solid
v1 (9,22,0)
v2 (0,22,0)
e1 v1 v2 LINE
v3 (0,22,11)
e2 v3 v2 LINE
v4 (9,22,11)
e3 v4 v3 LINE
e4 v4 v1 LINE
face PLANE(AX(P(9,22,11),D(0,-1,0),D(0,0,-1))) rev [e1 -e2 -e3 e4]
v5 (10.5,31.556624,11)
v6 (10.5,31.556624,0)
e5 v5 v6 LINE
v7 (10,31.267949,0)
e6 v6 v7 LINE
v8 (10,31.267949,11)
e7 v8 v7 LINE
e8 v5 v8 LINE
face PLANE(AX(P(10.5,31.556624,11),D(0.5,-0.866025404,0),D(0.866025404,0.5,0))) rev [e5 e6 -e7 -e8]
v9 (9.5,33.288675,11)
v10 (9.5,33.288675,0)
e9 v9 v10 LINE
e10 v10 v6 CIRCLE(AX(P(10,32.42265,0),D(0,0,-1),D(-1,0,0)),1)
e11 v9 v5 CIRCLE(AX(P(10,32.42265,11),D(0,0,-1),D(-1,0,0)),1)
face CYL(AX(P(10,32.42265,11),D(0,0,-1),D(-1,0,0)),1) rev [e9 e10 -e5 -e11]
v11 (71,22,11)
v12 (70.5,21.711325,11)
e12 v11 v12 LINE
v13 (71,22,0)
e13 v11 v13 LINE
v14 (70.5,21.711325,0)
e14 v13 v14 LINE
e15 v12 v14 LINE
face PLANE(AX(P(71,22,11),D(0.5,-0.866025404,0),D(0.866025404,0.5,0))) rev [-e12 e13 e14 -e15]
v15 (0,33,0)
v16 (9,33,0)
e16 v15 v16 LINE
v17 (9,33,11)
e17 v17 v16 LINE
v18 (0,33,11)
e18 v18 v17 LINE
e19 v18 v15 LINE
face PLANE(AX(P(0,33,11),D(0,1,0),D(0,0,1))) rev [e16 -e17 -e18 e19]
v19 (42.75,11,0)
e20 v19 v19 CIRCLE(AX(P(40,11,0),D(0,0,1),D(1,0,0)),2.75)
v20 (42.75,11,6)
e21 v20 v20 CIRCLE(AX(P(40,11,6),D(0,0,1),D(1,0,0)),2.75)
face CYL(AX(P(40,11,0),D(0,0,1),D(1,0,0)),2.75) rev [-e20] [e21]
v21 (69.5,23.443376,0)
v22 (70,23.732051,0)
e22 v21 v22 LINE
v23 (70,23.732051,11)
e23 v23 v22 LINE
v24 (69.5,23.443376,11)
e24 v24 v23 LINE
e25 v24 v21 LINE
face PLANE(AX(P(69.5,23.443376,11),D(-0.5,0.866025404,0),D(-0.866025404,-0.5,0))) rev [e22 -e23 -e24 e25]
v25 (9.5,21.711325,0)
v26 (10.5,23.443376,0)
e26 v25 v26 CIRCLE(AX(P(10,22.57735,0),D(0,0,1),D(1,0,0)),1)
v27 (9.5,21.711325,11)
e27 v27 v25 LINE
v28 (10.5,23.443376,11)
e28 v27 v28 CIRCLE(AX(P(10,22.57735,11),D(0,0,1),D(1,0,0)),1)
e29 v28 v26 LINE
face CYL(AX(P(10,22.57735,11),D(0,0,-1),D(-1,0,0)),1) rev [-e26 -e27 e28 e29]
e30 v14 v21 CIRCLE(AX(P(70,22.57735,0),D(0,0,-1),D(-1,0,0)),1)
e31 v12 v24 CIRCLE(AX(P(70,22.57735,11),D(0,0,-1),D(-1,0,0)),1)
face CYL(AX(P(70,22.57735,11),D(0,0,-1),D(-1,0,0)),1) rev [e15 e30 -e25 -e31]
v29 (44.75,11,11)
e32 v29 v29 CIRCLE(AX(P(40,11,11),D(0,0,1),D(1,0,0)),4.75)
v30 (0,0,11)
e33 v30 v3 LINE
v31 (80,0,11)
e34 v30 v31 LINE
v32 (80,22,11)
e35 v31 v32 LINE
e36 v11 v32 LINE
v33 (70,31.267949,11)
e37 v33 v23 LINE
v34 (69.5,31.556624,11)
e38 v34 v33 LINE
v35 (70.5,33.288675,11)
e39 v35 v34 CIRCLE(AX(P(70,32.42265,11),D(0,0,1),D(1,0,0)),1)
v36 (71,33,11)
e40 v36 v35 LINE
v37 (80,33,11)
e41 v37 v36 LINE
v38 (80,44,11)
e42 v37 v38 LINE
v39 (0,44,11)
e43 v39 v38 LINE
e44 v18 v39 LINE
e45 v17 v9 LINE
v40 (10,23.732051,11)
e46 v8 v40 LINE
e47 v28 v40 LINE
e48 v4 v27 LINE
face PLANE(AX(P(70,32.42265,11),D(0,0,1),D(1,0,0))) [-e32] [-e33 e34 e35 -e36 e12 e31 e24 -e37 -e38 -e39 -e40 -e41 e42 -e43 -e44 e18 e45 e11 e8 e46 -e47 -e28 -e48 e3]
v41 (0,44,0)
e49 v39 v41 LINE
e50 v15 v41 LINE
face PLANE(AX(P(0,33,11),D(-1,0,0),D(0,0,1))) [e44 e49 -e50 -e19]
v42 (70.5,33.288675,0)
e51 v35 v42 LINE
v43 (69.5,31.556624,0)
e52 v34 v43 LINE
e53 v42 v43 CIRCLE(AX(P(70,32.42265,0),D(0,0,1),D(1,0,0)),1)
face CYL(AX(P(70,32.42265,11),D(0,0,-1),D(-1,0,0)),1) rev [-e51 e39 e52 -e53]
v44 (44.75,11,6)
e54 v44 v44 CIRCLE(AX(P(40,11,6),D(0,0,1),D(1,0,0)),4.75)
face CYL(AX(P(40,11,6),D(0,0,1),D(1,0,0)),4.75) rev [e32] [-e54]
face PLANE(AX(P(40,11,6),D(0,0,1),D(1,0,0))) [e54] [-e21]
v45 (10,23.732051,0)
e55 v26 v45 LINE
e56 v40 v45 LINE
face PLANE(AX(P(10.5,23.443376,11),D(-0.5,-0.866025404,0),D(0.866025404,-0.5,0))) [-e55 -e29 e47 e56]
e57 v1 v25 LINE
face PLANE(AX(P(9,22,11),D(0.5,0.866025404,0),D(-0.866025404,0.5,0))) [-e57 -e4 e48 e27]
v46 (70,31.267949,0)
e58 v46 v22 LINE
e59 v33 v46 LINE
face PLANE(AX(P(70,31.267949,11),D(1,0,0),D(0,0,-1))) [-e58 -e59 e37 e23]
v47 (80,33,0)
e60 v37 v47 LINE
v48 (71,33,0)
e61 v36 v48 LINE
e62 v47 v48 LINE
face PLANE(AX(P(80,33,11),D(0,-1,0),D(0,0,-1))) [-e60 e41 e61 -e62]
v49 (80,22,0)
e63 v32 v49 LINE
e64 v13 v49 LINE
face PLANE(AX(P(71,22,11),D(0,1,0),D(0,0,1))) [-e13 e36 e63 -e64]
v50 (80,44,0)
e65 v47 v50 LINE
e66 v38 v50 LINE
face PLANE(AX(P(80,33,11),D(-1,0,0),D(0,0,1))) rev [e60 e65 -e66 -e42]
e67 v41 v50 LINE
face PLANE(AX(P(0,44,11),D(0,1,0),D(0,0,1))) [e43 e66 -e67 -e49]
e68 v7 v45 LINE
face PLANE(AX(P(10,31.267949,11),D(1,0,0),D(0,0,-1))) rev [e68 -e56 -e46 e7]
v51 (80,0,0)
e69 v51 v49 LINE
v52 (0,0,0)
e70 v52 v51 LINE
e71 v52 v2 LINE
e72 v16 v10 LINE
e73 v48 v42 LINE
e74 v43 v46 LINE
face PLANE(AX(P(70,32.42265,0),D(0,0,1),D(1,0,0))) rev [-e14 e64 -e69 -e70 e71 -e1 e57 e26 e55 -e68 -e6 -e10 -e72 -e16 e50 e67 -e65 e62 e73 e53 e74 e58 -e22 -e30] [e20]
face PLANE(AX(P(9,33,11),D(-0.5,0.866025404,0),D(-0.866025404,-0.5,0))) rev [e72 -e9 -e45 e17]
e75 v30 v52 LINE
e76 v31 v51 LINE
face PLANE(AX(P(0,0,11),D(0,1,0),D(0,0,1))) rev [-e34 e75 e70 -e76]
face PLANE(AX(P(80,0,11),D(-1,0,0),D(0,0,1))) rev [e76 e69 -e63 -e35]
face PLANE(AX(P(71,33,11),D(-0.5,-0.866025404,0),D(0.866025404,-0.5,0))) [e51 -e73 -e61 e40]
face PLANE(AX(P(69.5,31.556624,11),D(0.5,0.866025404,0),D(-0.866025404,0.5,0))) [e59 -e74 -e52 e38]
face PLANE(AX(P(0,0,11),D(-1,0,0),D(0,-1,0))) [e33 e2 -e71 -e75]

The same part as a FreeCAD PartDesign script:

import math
import FreeCAD as App
import Part
import Sketcher
Q = App.Units.Quantity

doc = App.newDocument("Part")
body = doc.addObject("PartDesign::Body", "Body")

sketch1 = doc.addObject("Sketcher::SketchObject", "Sketch")
body.addObject(sketch1)
sketch1.AttachmentSupport = (doc.XY_Plane, [""])
sketch1.MapMode = "FlatFace"
sketch1.addGeometry(Part.LineSegment(App.Vector(0, 33, 0), App.Vector(9, 33, 0)), False)
sketch1.addGeometry(Part.LineSegment(App.Vector(9, 33, 0), App.Vector(9.5, 33.3, 0)), False)
sketch1.addGeometry(Part.ArcOfCircle(Part.Circle(App.Vector(10, 32.4, 0), App.Vector(0, 0, 1), 1), math.radians(-60), math.radians(120)), False)
sketch1.addGeometry(Part.LineSegment(App.Vector(10.5, 31.6, 0), App.Vector(10, 31.3, 0)), False)
sketch1.addGeometry(Part.LineSegment(App.Vector(10, 31.3, 0), App.Vector(10, 23.7, 0)), False)
sketch1.addGeometry(Part.LineSegment(App.Vector(10, 23.7, 0), App.Vector(10.5, 23.4, 0)), False)
sketch1.addGeometry(Part.ArcOfCircle(Part.Circle(App.Vector(10, 22.6, 0), App.Vector(0, 0, 1), 1), math.radians(-120), math.radians(60)), False)
sketch1.addGeometry(Part.LineSegment(App.Vector(9.5, 21.7, 0), App.Vector(9, 22, 0)), False)
sketch1.addGeometry(Part.LineSegment(App.Vector(9, 22, 0), App.Vector(0, 22, 0)), False)
sketch1.addGeometry(Part.LineSegment(App.Vector(0, 22, 0), App.Vector(0, 0, 0)), False)
sketch1.addGeometry(Part.LineSegment(App.Vector(0, 0, 0), App.Vector(80, 0, 0)), False)
sketch1.addGeometry(Part.LineSegment(App.Vector(80, 0, 0), App.Vector(80, 22, 0)), False)
sketch1.addGeometry(Part.LineSegment(App.Vector(80, 22, 0), App.Vector(71, 22, 0)), False)
sketch1.addGeometry(Part.LineSegment(App.Vector(71, 22, 0), App.Vector(70.5, 21.7, 0)), False)
sketch1.addGeometry(Part.ArcOfCircle(Part.Circle(App.Vector(70, 22.6, 0), App.Vector(0, 0, 1), 1), math.radians(120), math.radians(300)), False)
sketch1.addGeometry(Part.LineSegment(App.Vector(69.5, 23.4, 0), App.Vector(70, 23.7, 0)), False)
sketch1.addGeometry(Part.LineSegment(App.Vector(70, 23.7, 0), App.Vector(70, 31.3, 0)), False)
sketch1.addGeometry(Part.LineSegment(App.Vector(70, 31.3, 0), App.Vector(69.5, 31.6, 0)), False)
sketch1.addGeometry(Part.ArcOfCircle(Part.Circle(App.Vector(70, 32.4, 0), App.Vector(0, 0, 1), 1), math.radians(60), math.radians(240)), False)
sketch1.addGeometry(Part.LineSegment(App.Vector(70.5, 33.3, 0), App.Vector(71, 33, 0)), False)
sketch1.addGeometry(Part.LineSegment(App.Vector(71, 33, 0), App.Vector(80, 33, 0)), False)
sketch1.addGeometry(Part.LineSegment(App.Vector(80, 33, 0), App.Vector(80, 44, 0)), False)
sketch1.addGeometry(Part.LineSegment(App.Vector(80, 44, 0), App.Vector(0, 44, 0)), False)
sketch1.addGeometry(Part.LineSegment(App.Vector(0, 44, 0), App.Vector(0, 33, 0)), False)
sketch1.addConstraint(Sketcher.Constraint("Coincident", 0, 2, 1, 1))
sketch1.addConstraint(Sketcher.Constraint("Tangent", 1, 2, 2, 2))
sketch1.addConstraint(Sketcher.Constraint("Tangent", 2, 1, 3, 1))
sketch1.addConstraint(Sketcher.Constraint("Coincident", 3, 2, 4, 1))
sketch1.addConstraint(Sketcher.Constraint("Coincident", 4, 2, 5, 1))
sketch1.addConstraint(Sketcher.Constraint("Tangent", 5, 2, 6, 2))
sketch1.addConstraint(Sketcher.Constraint("Tangent", 6, 1, 7, 1))
sketch1.addConstraint(Sketcher.Constraint("Coincident", 7, 2, 8, 1))
sketch1.addConstraint(Sketcher.Constraint("Coincident", 8, 2, 9, 1))
sketch1.addConstraint(Sketcher.Constraint("Coincident", 9, 2, 10, 1))
sketch1.addConstraint(Sketcher.Constraint("Coincident", 10, 2, 11, 1))
sketch1.addConstraint(Sketcher.Constraint("Coincident", 11, 2, 12, 1))
sketch1.addConstraint(Sketcher.Constraint("Coincident", 12, 2, 13, 1))
sketch1.addConstraint(Sketcher.Constraint("Tangent", 13, 2, 14, 2))
sketch1.addConstraint(Sketcher.Constraint("Tangent", 14, 1, 15, 1))
sketch1.addConstraint(Sketcher.Constraint("Coincident", 15, 2, 16, 1))
sketch1.addConstraint(Sketcher.Constraint("Coincident", 16, 2, 17, 1))
sketch1.addConstraint(Sketcher.Constraint("Tangent", 17, 2, 18, 2))
sketch1.addConstraint(Sketcher.Constraint("Tangent", 18, 1, 19, 1))
sketch1.addConstraint(Sketcher.Constraint("Coincident", 19, 2, 20, 1))
sketch1.addConstraint(Sketcher.Constraint("Coincident", 20, 2, 21, 1))
sketch1.addConstraint(Sketcher.Constraint("Coincident", 21, 2, 22, 1))
sketch1.addConstraint(Sketcher.Constraint("Coincident", 22, 2, 23, 1))
sketch1.addConstraint(Sketcher.Constraint("Coincident", 23, 2, 0, 1))
sketch1.addConstraint(Sketcher.Constraint("Horizontal", 0))
sketch1.addConstraint(Sketcher.Constraint("Vertical", 4))
sketch1.addConstraint(Sketcher.Constraint("Horizontal", 8))
sketch1.addConstraint(Sketcher.Constraint("Vertical", 9))
sketch1.addConstraint(Sketcher.Constraint("Horizontal", 10))
sketch1.addConstraint(Sketcher.Constraint("Vertical", 11))
sketch1.addConstraint(Sketcher.Constraint("Horizontal", 12))
sketch1.addConstraint(Sketcher.Constraint("Vertical", 16))
sketch1.addConstraint(Sketcher.Constraint("Horizontal", 20))
sketch1.addConstraint(Sketcher.Constraint("Vertical", 21))
sketch1.addConstraint(Sketcher.Constraint("Horizontal", 22))
sketch1.addConstraint(Sketcher.Constraint("Vertical", 23))
sketch1.addConstraint(Sketcher.Constraint("Coincident", 9, 2, -1, 1))
sketch1.addConstraint(Sketcher.Constraint("Equal", 2, 6))
sketch1.addConstraint(Sketcher.Constraint("Equal", 6, 14))
sketch1.addConstraint(Sketcher.Constraint("Equal", 14, 18))
sketch1.addConstraint(Sketcher.Constraint("PointOnObject", 22, 2, -2))
sketch1.addConstraint(Sketcher.Constraint("Parallel", 1, 3))
sketch1.addConstraint(Sketcher.Constraint("Parallel", 5, 7))
sketch1.addConstraint(Sketcher.Constraint("Parallel", 3, 13))
sketch1.addConstraint(Sketcher.Constraint("Parallel", 13, 15))
sketch1.addConstraint(Sketcher.Constraint("Parallel", 7, 17))
sketch1.addConstraint(Sketcher.Constraint("Parallel", 17, 19))
sketch1.addConstraint(Sketcher.Constraint("Horizontal", 6, 3, 14, 3))
sketch1.addConstraint(Sketcher.Constraint("Horizontal", 2, 3, 18, 3))
sketch1.addConstraint(Sketcher.Constraint("Horizontal", 8, 2, 11, 2))
sketch1.addConstraint(Sketcher.Constraint("Horizontal", 6, 1, 13, 2))
sketch1.addConstraint(Sketcher.Constraint("Horizontal", 4, 2, 15, 2))
sketch1.addConstraint(Sketcher.Constraint("Horizontal", 3, 2, 16, 2))
sketch1.addConstraint(Sketcher.Constraint("Horizontal", 0, 2, 19, 2))
sketch1.addConstraint(Sketcher.Constraint("Vertical", 2, 3, 6, 3))
sketch1.addConstraint(Sketcher.Constraint("Vertical", 6, 3, 3, 2))
sketch1.addConstraint(Sketcher.Constraint("Vertical", 0, 2, 7, 2))
sketch1.addConstraint(Sketcher.Constraint("Vertical", 11, 2, 20, 2))
sketch1.addConstraint(Sketcher.Constraint("Equal", 8, 12))
sketch1.addConstraint(Sketcher.Constraint("Equal", 1, 3))
sketch1.addConstraint(Sketcher.Constraint("Radius", 2, Q("1 mm")))
sketch1.addConstraint(Sketcher.Constraint("DistanceX", 0, 1, 0, 2, Q("9 mm")))
sketch1.addConstraint(Sketcher.Constraint("DistanceX", 10, 1, 10, 2, Q("80 mm")))
sketch1.addConstraint(Sketcher.Constraint("DistanceY", 9, 2, 9, 1, Q("22 mm")))
sketch1.addConstraint(Sketcher.Constraint("DistanceY", 21, 1, 21, 2, Q("11 mm")))
sketch1.addConstraint(Sketcher.Constraint("Angle", 1, Q("30 deg")))
sketch1.addConstraint(Sketcher.Constraint("DistanceY", -1, 1, 0, 2, Q("33 mm")))
pad1 = doc.addObject("PartDesign::Pad", "Pad")
body.addObject(pad1)
pad1.Profile = sketch1
pad1.Length = 11

sketch2 = doc.addObject("Sketcher::SketchObject", "Sketch001")
body.addObject(sketch2)
sketch2.AttachmentSupport = (doc.XY_Plane, [""])
sketch2.MapMode = "FlatFace"
sketch2.AttachmentOffset = App.Placement(App.Vector(0, 0, 11), App.Rotation())
sketch2.addGeometry(Part.Circle(App.Vector(40, 11, 0), App.Vector(0, 0, 1), 4.8), False)
sketch2.addConstraint(Sketcher.Constraint("Diameter", 0, Q("9.5 mm")))
sketch2.addConstraint(Sketcher.Constraint("DistanceX", -1, 1, 0, 3, Q("40 mm")))
sketch2.addConstraint(Sketcher.Constraint("DistanceY", -1, 1, 0, 3, Q("11 mm")))
pocket1 = doc.addObject("PartDesign::Pocket", "Pocket")
body.addObject(pocket1)
pocket1.Profile = sketch2
pocket1.Length = 5

sketch3 = doc.addObject("Sketcher::SketchObject", "Sketch002")
body.addObject(sketch3)
sketch3.AttachmentSupport = (doc.XY_Plane, [""])
sketch3.MapMode = "FlatFace"
sketch3.AttachmentOffset = App.Placement(App.Vector(0, 0, 6), App.Rotation())
sketch3.addGeometry(Part.Circle(App.Vector(40, 11, 0), App.Vector(0, 0, 1), 2.8), False)
sketch3.addConstraint(Sketcher.Constraint("Diameter", 0, Q("5.5 mm")))
sketch3.addConstraint(Sketcher.Constraint("DistanceX", -1, 1, 0, 3, Q("40 mm")))
sketch3.addConstraint(Sketcher.Constraint("DistanceY", -1, 1, 0, 3, Q("11 mm")))
pocket2 = doc.addObject("PartDesign::Pocket", "Pocket001")
body.addObject(pocket2)
pocket2.Profile = sketch3
pocket2.Type = "ThroughAll"

doc.recompute()
